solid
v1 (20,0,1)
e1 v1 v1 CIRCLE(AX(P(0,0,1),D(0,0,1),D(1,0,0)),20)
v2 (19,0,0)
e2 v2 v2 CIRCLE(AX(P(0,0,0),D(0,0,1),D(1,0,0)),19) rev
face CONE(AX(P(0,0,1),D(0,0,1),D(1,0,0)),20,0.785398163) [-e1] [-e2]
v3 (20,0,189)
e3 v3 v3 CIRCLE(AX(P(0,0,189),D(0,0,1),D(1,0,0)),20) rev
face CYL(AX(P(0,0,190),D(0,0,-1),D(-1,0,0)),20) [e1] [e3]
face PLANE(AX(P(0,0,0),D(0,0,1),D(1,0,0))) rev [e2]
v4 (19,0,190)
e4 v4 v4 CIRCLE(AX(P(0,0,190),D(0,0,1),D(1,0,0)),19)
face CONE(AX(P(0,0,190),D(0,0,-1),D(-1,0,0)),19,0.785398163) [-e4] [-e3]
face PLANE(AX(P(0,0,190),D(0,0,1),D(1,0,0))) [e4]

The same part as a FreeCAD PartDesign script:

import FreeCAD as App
import Part
import Sketcher


def edges_at(feature, points):
    """Names of the edges that pass closest to the given points."""
    edges = feature.Shape.Edges
    near = lambda p: min(range(len(edges)), key=lambda i: edges[i].distToShape(Part.Vertex(*p))[0])
    return sorted({f"Edge{near(p) + 1}" for p in points})

doc = App.newDocument("Part")
body = doc.addObject("PartDesign::Body", "Body")

# Sketch on XY plane
sketch1 = doc.addObject("Sketcher::SketchObject", "Sketch")
body.addObject(sketch1)
sketch1.AttachmentSupport = (doc.XY_Plane, [""])
sketch1.MapMode = "FlatFace"
sketch1.addGeometry(Part.Circle(App.Vector(0, 0, 0), App.Vector(0, 0, 1), 20), False)
sketch1.addConstraint([
    Sketcher.Constraint("Coincident", 0, 3, -1, 1),
    Sketcher.Constraint("Diameter", 0, 40.0),
])
pad1 = doc.addObject("PartDesign::Pad", "Pad")
body.addObject(pad1)
pad1.Profile = sketch1
pad1.Length = 190
doc.recompute()

chamfer = doc.addObject("PartDesign::Chamfer", "Chamfer")
body.addObject(chamfer)
chamfer.Base = (pad1, edges_at(pad1, [(-20, 0, 0), (-20, 0, 190)]))
chamfer.Size = 1

doc.recompute()
